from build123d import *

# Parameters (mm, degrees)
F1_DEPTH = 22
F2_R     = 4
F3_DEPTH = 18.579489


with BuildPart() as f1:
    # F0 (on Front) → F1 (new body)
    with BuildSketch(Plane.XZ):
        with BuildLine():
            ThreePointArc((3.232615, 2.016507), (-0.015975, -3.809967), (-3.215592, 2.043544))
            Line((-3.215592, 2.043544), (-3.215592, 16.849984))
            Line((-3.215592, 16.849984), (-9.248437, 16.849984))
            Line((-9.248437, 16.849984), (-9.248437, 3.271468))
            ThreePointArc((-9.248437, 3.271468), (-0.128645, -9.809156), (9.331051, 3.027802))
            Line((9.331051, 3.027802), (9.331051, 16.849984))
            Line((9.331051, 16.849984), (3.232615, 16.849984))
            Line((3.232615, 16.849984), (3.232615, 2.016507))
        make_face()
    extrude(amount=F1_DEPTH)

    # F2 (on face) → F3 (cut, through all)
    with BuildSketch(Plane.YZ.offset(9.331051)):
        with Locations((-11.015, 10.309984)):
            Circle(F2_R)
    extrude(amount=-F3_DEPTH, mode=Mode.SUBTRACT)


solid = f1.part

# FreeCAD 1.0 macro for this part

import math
import FreeCAD as App
import Part
import Sketcher
Q = App.Units.Quantity

doc = App.newDocument("Part")
body = doc.addObject("PartDesign::Body", "Body")

# Sketch on XZ plane
sketch1 = doc.addObject("Sketcher::SketchObject", "Sketch")
body.addObject(sketch1)
sketch1.AttachmentSupport = (doc.XZ_Plane, [""])
sketch1.MapMode = "FlatFace"
sketch1.addGeometry([
    Part.ArcOfCircle(Part.Circle(App.Vector(0, 0, 0), App.Vector(0, 0, 1), 3.81), math.radians(147.56359), math.radians(391.955937)),  # 0
    Part.LineSegment(App.Vector(-3.215592, 2.043544, 0), App.Vector(-3.215592, 16.849984, 0)),  # 1
    Part.LineSegment(App.Vector(-3.215592, 16.849984, 0), App.Vector(-9.248437, 16.849984, 0)),  # 2
    Part.LineSegment(App.Vector(-9.248437, 16.849984, 0), App.Vector(-9.248437, 3.271468, 0)),  # 3
    Part.ArcOfCircle(Part.Circle(App.Vector(0, 0, 0), App.Vector(0, 0, 1), 9.81), math.radians(160.519685), math.radians(377.977557)),  # 4
    Part.LineSegment(App.Vector(9.331051, 3.027802, 0), App.Vector(9.331051, 16.849984, 0)),  # 5
    Part.LineSegment(App.Vector(9.331051, 16.849984, 0), App.Vector(3.232615, 16.849984, 0)),  # 6
    Part.LineSegment(App.Vector(3.232615, 16.849984, 0), App.Vector(3.232615, 2.016507, 0)),  # 7
], False)
sketch1.addConstraint([
    Sketcher.Constraint("Coincident", 0, 1, 1, 1),
    Sketcher.Constraint("Coincident", 1, 2, 2, 1),
    Sketcher.Constraint("Coincident", 2, 2, 3, 1),
    Sketcher.Constraint("Coincident", 3, 2, 4, 1),
    Sketcher.Constraint("Coincident", 4, 2, 5, 1),
    Sketcher.Constraint("Coincident", 5, 2, 6, 1),
    Sketcher.Constraint("Coincident", 6, 2, 7, 1),
    Sketcher.Constraint("Coincident", 7, 2, 0, 2),
    Sketcher.Constraint("Vertical", 1),
    Sketcher.Constraint("Horizontal", 2),
    Sketcher.Constraint("Vertical", 3),
    Sketcher.Constraint("Vertical", 5),
    Sketcher.Constraint("Horizontal", 6),
    Sketcher.Constraint("Vertical", 7),
    Sketcher.Constraint("Coincident", 0, 3, -1, 1),
    Sketcher.Constraint("Coincident", 4, 3, -1, 1),
    Sketcher.Constraint("Horizontal", 2, 2, 5, 2),
    Sketcher.Constraint("Radius", 0, Q("3.81 mm")),
    Sketcher.Constraint("Radius", 4, Q("9.81 mm")),
    Sketcher.Constraint("DistanceY", 1, 1, 1, 2, Q("14.80644 mm")),
    Sketcher.Constraint("DistanceY", 4, 3, 4, 2, Q("3.027802 mm")),
    Sketcher.Constraint("DistanceX", 2, 2, 2, 1, Q("6.032845 mm")),
    Sketcher.Constraint("DistanceX", 6, 2, 6, 1, Q("6.098436 mm")),
    Sketcher.Constraint("DistanceY", 3, 2, 3, 1, Q("13.578516 mm")),
])
pad1 = doc.addObject("PartDesign::Pad", "Pad")
body.addObject(pad1)
pad1.Profile = sketch1
pad1.Length = 22

# Sketch on YZ plane
sketch2 = doc.addObject("Sketcher::SketchObject", "Sketch001")
body.addObject(sketch2)
sketch2.AttachmentSupport = (doc.YZ_Plane, [""])
sketch2.MapMode = "FlatFace"
sketch2.AttachmentOffset = App.Placement(App.Vector(0, 0, 9.331051), App.Rotation())
sketch2.addGeometry(Part.Circle(App.Vector(-11.015, 10.309984, 0), App.Vector(0, 0, 1), 4), False)
sketch2.addConstraint([
    Sketcher.Constraint("Diameter", 0, Q("8 mm")),
    Sketcher.Constraint("DistanceX", 0, 3, -1, 1, Q("11.015 mm")),
    Sketcher.Constraint("DistanceY", -1, 1, 0, 3, Q("10.309984 mm")),
])
pocket1 = doc.addObject("PartDesign::Pocket", "Pocket")
body.addObject(pocket1)
pocket1.Profile = sketch2
pocket1.Type = "ThroughAll"

doc.recompute()
